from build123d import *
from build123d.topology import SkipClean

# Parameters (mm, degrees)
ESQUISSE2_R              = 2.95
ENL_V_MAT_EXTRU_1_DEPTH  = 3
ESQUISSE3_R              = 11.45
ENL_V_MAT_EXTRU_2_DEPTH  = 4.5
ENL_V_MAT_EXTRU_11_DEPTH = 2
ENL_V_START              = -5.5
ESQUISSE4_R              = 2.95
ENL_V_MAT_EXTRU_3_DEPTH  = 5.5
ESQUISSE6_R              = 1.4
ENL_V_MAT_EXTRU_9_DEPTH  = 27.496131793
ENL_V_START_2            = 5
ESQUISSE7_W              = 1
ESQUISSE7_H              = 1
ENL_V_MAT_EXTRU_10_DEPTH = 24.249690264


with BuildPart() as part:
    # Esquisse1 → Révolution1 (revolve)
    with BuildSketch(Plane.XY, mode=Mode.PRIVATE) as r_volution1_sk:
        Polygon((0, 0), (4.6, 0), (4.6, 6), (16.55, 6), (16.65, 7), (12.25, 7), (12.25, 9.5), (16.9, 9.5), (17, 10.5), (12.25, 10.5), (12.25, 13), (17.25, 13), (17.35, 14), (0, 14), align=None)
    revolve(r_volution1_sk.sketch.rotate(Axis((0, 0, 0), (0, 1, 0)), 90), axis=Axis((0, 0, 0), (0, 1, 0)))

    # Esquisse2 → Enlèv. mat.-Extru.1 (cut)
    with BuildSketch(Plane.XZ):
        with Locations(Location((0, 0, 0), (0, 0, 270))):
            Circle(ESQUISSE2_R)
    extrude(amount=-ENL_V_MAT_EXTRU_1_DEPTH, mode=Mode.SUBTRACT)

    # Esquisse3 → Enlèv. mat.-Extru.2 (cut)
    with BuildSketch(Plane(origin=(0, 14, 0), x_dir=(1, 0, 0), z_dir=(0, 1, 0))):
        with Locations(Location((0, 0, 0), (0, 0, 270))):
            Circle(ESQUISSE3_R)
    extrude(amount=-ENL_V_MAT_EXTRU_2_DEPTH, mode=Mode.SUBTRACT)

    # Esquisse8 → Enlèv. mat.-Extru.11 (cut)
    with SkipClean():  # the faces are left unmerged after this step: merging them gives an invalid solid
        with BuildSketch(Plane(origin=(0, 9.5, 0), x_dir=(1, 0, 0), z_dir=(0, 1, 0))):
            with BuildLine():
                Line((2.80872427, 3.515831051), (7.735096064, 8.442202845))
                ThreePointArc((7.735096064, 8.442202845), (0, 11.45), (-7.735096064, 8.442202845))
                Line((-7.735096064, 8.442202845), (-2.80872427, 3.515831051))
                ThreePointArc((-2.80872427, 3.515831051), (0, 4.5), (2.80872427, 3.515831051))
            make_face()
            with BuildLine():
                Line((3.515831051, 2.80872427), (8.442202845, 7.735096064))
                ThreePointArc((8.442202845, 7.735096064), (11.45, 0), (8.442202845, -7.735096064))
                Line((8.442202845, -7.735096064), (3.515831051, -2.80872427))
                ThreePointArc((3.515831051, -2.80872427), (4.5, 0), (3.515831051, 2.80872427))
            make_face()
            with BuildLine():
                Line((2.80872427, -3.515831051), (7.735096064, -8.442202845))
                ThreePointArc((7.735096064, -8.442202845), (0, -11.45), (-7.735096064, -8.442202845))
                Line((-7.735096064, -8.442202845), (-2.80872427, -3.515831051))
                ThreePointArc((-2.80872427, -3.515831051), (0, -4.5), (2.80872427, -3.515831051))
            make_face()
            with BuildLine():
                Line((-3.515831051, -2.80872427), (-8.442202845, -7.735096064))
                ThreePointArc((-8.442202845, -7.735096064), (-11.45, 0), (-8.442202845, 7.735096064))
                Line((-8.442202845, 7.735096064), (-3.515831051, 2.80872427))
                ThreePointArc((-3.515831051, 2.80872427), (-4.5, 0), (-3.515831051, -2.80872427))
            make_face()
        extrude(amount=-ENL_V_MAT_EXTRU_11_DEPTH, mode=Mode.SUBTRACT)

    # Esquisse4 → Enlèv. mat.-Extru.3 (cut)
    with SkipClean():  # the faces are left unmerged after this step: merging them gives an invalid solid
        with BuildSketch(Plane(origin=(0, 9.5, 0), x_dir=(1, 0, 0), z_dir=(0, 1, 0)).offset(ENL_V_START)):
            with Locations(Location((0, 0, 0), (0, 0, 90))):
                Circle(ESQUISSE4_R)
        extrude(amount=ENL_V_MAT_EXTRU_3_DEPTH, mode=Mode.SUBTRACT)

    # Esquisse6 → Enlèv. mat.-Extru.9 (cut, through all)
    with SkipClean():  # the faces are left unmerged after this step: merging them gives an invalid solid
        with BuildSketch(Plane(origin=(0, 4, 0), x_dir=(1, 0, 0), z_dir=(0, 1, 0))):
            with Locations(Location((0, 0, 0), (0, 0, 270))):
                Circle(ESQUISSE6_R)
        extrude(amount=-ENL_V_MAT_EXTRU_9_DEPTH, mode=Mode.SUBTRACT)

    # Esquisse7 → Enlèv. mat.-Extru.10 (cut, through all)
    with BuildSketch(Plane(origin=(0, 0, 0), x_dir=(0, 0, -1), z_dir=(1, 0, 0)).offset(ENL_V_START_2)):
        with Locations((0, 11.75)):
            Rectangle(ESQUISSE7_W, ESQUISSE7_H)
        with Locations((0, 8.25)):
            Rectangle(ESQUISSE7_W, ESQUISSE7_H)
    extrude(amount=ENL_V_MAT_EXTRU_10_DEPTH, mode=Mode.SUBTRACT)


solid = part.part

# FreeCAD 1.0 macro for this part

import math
import FreeCAD as App
import Part
import Sketcher
Q = App.Units.Quantity

doc = App.newDocument("Part")
params = doc.addObject("Spreadsheet::Sheet", "Params")
for row, (alias, value) in enumerate([
    ("sketch1_width", "5 mm"),
    ("sketch1_height", "6 mm"),
    ("sketch1_height2", "14 mm"),
    ("sketch1_width2", "4.6 mm"),
    ("sketch1_width3", "4.4 mm"),
    ("revolution_angle", "360 deg"),
    ("sketch2_diameter", "5.9 mm"),
    ("pocket1_length", "3 mm"),
    ("sketch3_diameter", "22.9 mm"),
    ("pocket2_length", "4.5 mm"),
    ("sketch4_radius", "4.5 mm"),
    ("sketch4_radius2", "11.45 mm"),
    ("pocket3_length", "2 mm"),
    ("sketch5_diameter", "5.9 mm"),
    ("pocket4_length", "5.5 mm"),
    ("sketch6_diameter", "2.8 mm"),
    ("sketch7_width", "1 mm"),
], start=1):
    params.set(f"A{row}", alias)
    params.set(f"B{row}", "=" + value)
    params.setAlias(f"B{row}", alias)

body = doc.addObject("PartDesign::Body", "Body")

sketch1 = body.newObject("Sketcher::SketchObject", "Sketch")
sketch1.AttachmentSupport = (doc.getObject("XY_Plane"), [""])
sketch1.MapMode = "FlatFace"
sketch1.addGeometry([
    Part.LineSegment(App.Vector(0, 0, 0), App.Vector(4.6, 0, 0)),
    Part.LineSegment(App.Vector(4.6, 0, 0), App.Vector(4.6, 6, 0)),
    Part.LineSegment(App.Vector(4.6, 6, 0), App.Vector(16.55, 6, 0)),
    Part.LineSegment(App.Vector(16.55, 6, 0), App.Vector(16.65, 7, 0)),
    Part.LineSegment(App.Vector(16.65, 7, 0), App.Vector(12.25, 7, 0)),
    Part.LineSegment(App.Vector(12.25, 7, 0), App.Vector(12.25, 9.5, 0)),
    Part.LineSegment(App.Vector(12.25, 9.5, 0), App.Vector(16.9, 9.5, 0)),
    Part.LineSegment(App.Vector(16.9, 9.5, 0), App.Vector(17, 10.5, 0)),
    Part.LineSegment(App.Vector(17, 10.5, 0), App.Vector(12.25, 10.5, 0)),
    Part.LineSegment(App.Vector(12.25, 10.5, 0), App.Vector(12.25, 13, 0)),
    Part.LineSegment(App.Vector(12.25, 13, 0), App.Vector(17.25, 13, 0)),
    Part.LineSegment(App.Vector(17.25, 13, 0), App.Vector(17.35, 14, 0)),
    Part.LineSegment(App.Vector(17.35, 14, 0), App.Vector(0, 14, 0)),
    Part.LineSegment(App.Vector(0, 14, 0), App.Vector(0, 0, 0)),
], False)
sketch1.addConstraint([
    Sketcher.Constraint("Coincident", 0, 2, 1, 1),
    Sketcher.Constraint("Coincident", 1, 2, 2, 1),
    Sketcher.Constraint("Coincident", 2, 2, 3, 1),
    Sketcher.Constraint("Coincident", 3, 2, 4, 1),
    Sketcher.Constraint("Coincident", 4, 2, 5, 1),
    Sketcher.Constraint("Coincident", 5, 2, 6, 1),
    Sketcher.Constraint("Coincident", 6, 2, 7, 1),
    Sketcher.Constraint("Coincident", 7, 2, 8, 1),
    Sketcher.Constraint("Coincident", 8, 2, 9, 1),
    Sketcher.Constraint("Coincident", 9, 2, 10, 1),
    Sketcher.Constraint("Coincident", 10, 2, 11, 1),
    Sketcher.Constraint("Coincident", 11, 2, 12, 1),
    Sketcher.Constraint("Coincident", 12, 2, 13, 1),
    Sketcher.Constraint("Coincident", 13, 2, 0, 1),
    Sketcher.Constraint("Horizontal", 0),
    Sketcher.Constraint("Vertical", 1),
    Sketcher.Constraint("Horizontal", 2),
    Sketcher.Constraint("Horizontal", 4),
    Sketcher.Constraint("Vertical", 5),
    Sketcher.Constraint("Horizontal", 6),
    Sketcher.Constraint("Horizontal", 8),
    Sketcher.Constraint("Vertical", 9),
    Sketcher.Constraint("Horizontal", 10),
    Sketcher.Constraint("Horizontal", 12),
    Sketcher.Constraint("Vertical", 13),
    Sketcher.Constraint("Coincident", 13, 2, -1, 1),
    Sketcher.Constraint("Parallel", 3, 7),
    Sketcher.Constraint("Parallel", 7, 11),
    Sketcher.Constraint("Vertical", 5, 2, 8, 2),
    Sketcher.Constraint("Equal", 5, 9),
    Sketcher.Constraint("Equal", 3, 7),
    Sketcher.Constraint("Equal", 7, 11),
    Sketcher.Constraint("DistanceX", 10, 1, 10, 2, Q("5 mm")),
    Sketcher.Constraint("DistanceY", 1, 1, 1, 2, Q("6 mm")),
    Sketcher.Constraint("DistanceY", 13, 2, 13, 1, Q("14 mm")),
    Sketcher.Constraint("DistanceX", 0, 1, 0, 2, Q("4.6 mm")),
    Sketcher.Constraint("DistanceX", 4, 2, 4, 1, Q("4.4 mm")),
    Sketcher.Constraint("DistanceY", 5, 1, 5, 2, Q("2.5 mm")),
    Sketcher.Constraint("DistanceX", -1, 1, 7, 2, Q("17 mm")),
    Sketcher.Constraint("DistanceX", 2, 1, 2, 2, Q("11.95 mm")),
    Sketcher.Constraint("DistanceX", 6, 1, 6, 2, Q("4.65 mm")),
])
sketch1.setExpression("Constraints[32]", "Params.sketch1_width")
sketch1.setExpression("Constraints[33]", "Params.sketch1_height")
sketch1.setExpression("Constraints[34]", "Params.sketch1_height2")
sketch1.setExpression("Constraints[35]", "Params.sketch1_width2")
sketch1.setExpression("Constraints[36]", "Params.sketch1_width3")
revolution = body.newObject("PartDesign::Revolution", "Revolution")
revolution.Profile = sketch1
revolution.ReferenceAxis = (sketch1, ["V_Axis"])
revolution.setExpression("Angle", "Params.revolution_angle")

sketch2 = body.newObject("Sketcher::SketchObject", "Sketch001")
sketch2.AttachmentSupport = (doc.getObject("XZ_Plane"), [""])
sketch2.MapMode = "FlatFace"
sketch2.addGeometry(Part.Circle(App.Vector(0, 0, 0), App.Vector(0, 0, 1), 2.95), False)
sketch2.addConstraint([
    Sketcher.Constraint("Coincident", 0, 3, -1, 1),
    Sketcher.Constraint("Diameter", 0, Q("5.9 mm")),
])
sketch2.setExpression("Constraints[1]", "Params.sketch2_diameter")
pocket1 = body.newObject("PartDesign::Pocket", "Pocket")
pocket1.Profile = sketch2
pocket1.setExpression("Length", "Params.pocket1_length")

sketch3 = body.newObject("Sketcher::SketchObject", "Sketch002")
sketch3.AttachmentSupport = (doc.getObject("XZ_Plane"), [""])
sketch3.MapMode = "FlatFace"
sketch3.AttachmentOffset = App.Placement(App.Vector(0, 0, -14), App.Rotation())
sketch3.addGeometry(Part.Circle(App.Vector(0, 0, 0), App.Vector(0, 0, 1), 11.45), False)
sketch3.addConstraint([
    Sketcher.Constraint("Coincident", 0, 3, -1, 1),
    Sketcher.Constraint("Diameter", 0, Q("22.9 mm")),
])
sketch3.setExpression("Constraints[1]", "Params.sketch3_diameter")
pocket2 = body.newObject("PartDesign::Pocket", "Pocket001")
pocket2.Profile = sketch3
pocket2.setExpression("Length", "Params.pocket2_length")
pocket2.Reversed = True

sketch4 = body.newObject("Sketcher::SketchObject", "Sketch003")
sketch4.AttachmentSupport = (doc.getObject("XZ_Plane"), [""])
sketch4.MapMode = "FlatFace"
sketch4.AttachmentOffset = App.Placement(App.Vector(0, 0, -9.5), App.Rotation())
sketch4.addGeometry([
    Part.LineSegment(App.Vector(2.808724, -3.515831, 0), App.Vector(7.735096, -8.442203, 0)),
    Part.ArcOfCircle(Part.Circle(App.Vector(0, 0, 0), App.Vector(0, 0, 1), 11.45), math.radians(-132.497205), math.radians(-47.502795)),
    Part.LineSegment(App.Vector(-7.735096, -8.442203, 0), App.Vector(-2.808724, -3.515831, 0)),
    Part.ArcOfCircle(Part.Circle(App.Vector(0, 0, 0), App.Vector(0, 0, 1), 4.5), math.radians(-128.62063), math.radians(-51.37937)),
    Part.LineSegment(App.Vector(8.442203, -7.735096, 0), App.Vector(3.515831, -2.808724, 0)),
    Part.ArcOfCircle(Part.Circle(App.Vector(0, 0, 0), App.Vector(0, 0, 1), 4.5), math.radians(-38.62063), math.radians(38.62063)),
    Part.LineSegment(App.Vector(3.515831, 2.808724, 0), App.Vector(8.442203, 7.735096, 0)),
    Part.ArcOfCircle(Part.Circle(App.Vector(0, 0, 0), App.Vector(0, 0, 1), 11.45), math.radians(-42.497205), math.radians(42.497205)),
    Part.LineSegment(App.Vector(7.735096, 8.442203, 0), App.Vector(2.808724, 3.515831, 0)),
    Part.ArcOfCircle(Part.Circle(App.Vector(0, 0, 0), App.Vector(0, 0, 1), 4.5), math.radians(51.37937), math.radians(128.62063)),
    Part.LineSegment(App.Vector(-2.808724, 3.515831, 0), App.Vector(-7.735096, 8.442203, 0)),
    Part.ArcOfCircle(Part.Circle(App.Vector(0, 0, 0), App.Vector(0, 0, 1), 11.45), math.radians(47.502795), math.radians(132.497205)),
    Part.LineSegment(App.Vector(-8.442203, 7.735096, 0), App.Vector(-3.515831, 2.808724, 0)),
    Part.ArcOfCircle(Part.Circle(App.Vector(0, 0, 0), App.Vector(0, 0, 1), 4.5), math.radians(141.37937), math.radians(218.62063)),
    Part.LineSegment(App.Vector(-3.515831, -2.808724, 0), App.Vector(-8.442203, -7.735096, 0)),
    Part.ArcOfCircle(Part.Circle(App.Vector(0, 0, 0), App.Vector(0, 0, 1), 11.45), math.radians(137.502795), math.radians(222.497205)),
], False)
sketch4.addConstraint([
    Sketcher.Constraint("Coincident", 0, 2, 1, 2),
    Sketcher.Constraint("Coincident", 1, 1, 2, 1),
    Sketcher.Constraint("Coincident", 2, 2, 3, 1),
    Sketcher.Constraint("Coincident", 3, 2, 0, 1),
    Sketcher.Constraint("Coincident", 4, 2, 5, 1),
    Sketcher.Constraint("Coincident", 5, 2, 6, 1),
    Sketcher.Constraint("Coincident", 6, 2, 7, 2),
    Sketcher.Constraint("Coincident", 7, 1, 4, 1),
    Sketcher.Constraint("Coincident", 8, 2, 9, 1),
    Sketcher.Constraint("Coincident", 9, 2, 10, 1),
    Sketcher.Constraint("Coincident", 10, 2, 11, 2),
    Sketcher.Constraint("Coincident", 11, 1, 8, 1),
    Sketcher.Constraint("Coincident", 12, 2, 13, 1),
    Sketcher.Constraint("Coincident", 13, 2, 14, 1),
    Sketcher.Constraint("Coincident", 14, 2, 15, 2),
    Sketcher.Constraint("Coincident", 15, 1, 12, 1),
    Sketcher.Constraint("Coincident", 1, 3, -1, 1),
    Sketcher.Constraint("Coincident", 3, 3, -1, 1),
    Sketcher.Constraint("Coincident", 5, 3, -1, 1),
    Sketcher.Constraint("Coincident", 7, 3, -1, 1),
    Sketcher.Constraint("Coincident", 9, 3, -1, 1),
    Sketcher.Constraint("Coincident", 11, 3, -1, 1),
    Sketcher.Constraint("Coincident", 13, 3, -1, 1),
    Sketcher.Constraint("Coincident", 15, 3, -1, 1),
    Sketcher.Constraint("Equal", 3, 5),
    Sketcher.Constraint("Equal", 1, 7),
    Sketcher.Constraint("Equal", 5, 9),
    Sketcher.Constraint("Equal", 7, 11),
    Sketcher.Constraint("Equal", 9, 13),
    Sketcher.Constraint("Equal", 11, 15),
    Sketcher.Constraint("Perpendicular", 0, 2),
    Sketcher.Constraint("Perpendicular", 2, 4),
    Sketcher.Constraint("Perpendicular", 4, 6),
    Sketcher.Constraint("Parallel", 6, 8),
    Sketcher.Constraint("Perpendicular", 8, 10),
    Sketcher.Constraint("Parallel", 10, 12),
    Sketcher.Constraint("Perpendicular", 12, 14),
    Sketcher.Constraint("Horizontal", 0, 2, 1, 1),
    Sketcher.Constraint("Horizontal", 2, 2, 3, 2),
    Sketcher.Constraint("Horizontal", 8, 2, 9, 2),
    Sketcher.Constraint("Horizontal", 5, 2, 12, 2),
    Sketcher.Constraint("Horizontal", 4, 2, 13, 2),
    Sketcher.Constraint("Vertical", 4, 2, 5, 2),
    Sketcher.Constraint("Vertical", 3, 2, 8, 2),
    Sketcher.Constraint("Equal", 2, 4),
    Sketcher.Constraint("Radius", 3, Q("4.5 mm")),
    Sketcher.Constraint("Radius", 1, Q("11.45 mm")),
    Sketcher.Constraint("Distance", 0, Q("6.966942 mm")),
])
sketch4.setExpression("Constraints[45]", "Params.sketch4_radius")
sketch4.setExpression("Constraints[46]", "Params.sketch4_radius2")
pocket3 = body.newObject("PartDesign::Pocket", "Pocket002")
pocket3.Profile = sketch4
pocket3.setExpression("Length", "Params.pocket3_length")
pocket3.Reversed = True

sketch5 = body.newObject("Sketcher::SketchObject", "Sketch004")
sketch5.AttachmentSupport = (doc.getObject("XZ_Plane"), [""])
sketch5.MapMode = "FlatFace"
sketch5.AttachmentOffset = App.Placement(App.Vector(0, 0, -4), App.Rotation())
sketch5.addGeometry(Part.Circle(App.Vector(0, 0, 0), App.Vector(0, 0, 1), 2.95), False)
sketch5.addConstraint([
    Sketcher.Constraint("Coincident", 0, 3, -1, 1),
    Sketcher.Constraint("Diameter", 0, Q("5.9 mm")),
])
sketch5.setExpression("Constraints[1]", "Params.sketch5_diameter")
pocket4 = body.newObject("PartDesign::Pocket", "Pocket003")
pocket4.Profile = sketch5
pocket4.setExpression("Length", "Params.pocket4_length")

sketch6 = body.newObject("Sketcher::SketchObject", "Sketch005")
sketch6.AttachmentSupport = (doc.getObject("XZ_Plane"), [""])
sketch6.MapMode = "FlatFace"
sketch6.AttachmentOffset = App.Placement(App.Vector(0, 0, -4), App.Rotation())
sketch6.addGeometry(Part.Circle(App.Vector(0, 0, 0), App.Vector(0, 0, 1), 1.4), False)
sketch6.addConstraint([
    Sketcher.Constraint("Coincident", 0, 3, -1, 1),
    Sketcher.Constraint("Diameter", 0, Q("2.8 mm")),
])
sketch6.setExpression("Constraints[1]", "Params.sketch6_diameter")
pocket5 = body.newObject("PartDesign::Pocket", "Pocket004")
pocket5.Profile = sketch6
pocket5.Type = "ThroughAll"
pocket5.Reversed = True

sketch7 = body.newObject("Sketcher::SketchObject", "Sketch006")
sketch7.AttachmentSupport = (doc.getObject("YZ_Plane"), [""])
sketch7.MapMode = "FlatFace"
sketch7.AttachmentOffset = App.Placement(App.Vector(0, 0, 5), App.Rotation())
sketch7.addGeometry([
    Part.LineSegment(App.Vector(12.25, 0.5, 0), App.Vector(11.25, 0.5, 0)),
    Part.LineSegment(App.Vector(11.25, 0.5, 0), App.Vector(11.25, -0.5, 0)),
    Part.LineSegment(App.Vector(11.25, -0.5, 0), App.Vector(12.25, -0.5, 0)),
    Part.LineSegment(App.Vector(12.25, -0.5, 0), App.Vector(12.25, 0.5, 0)),
    Part.LineSegment(App.Vector(8.75, 0.5, 0), App.Vector(7.75, 0.5, 0)),
    Part.LineSegment(App.Vector(7.75, 0.5, 0), App.Vector(7.75, -0.5, 0)),
    Part.LineSegment(App.Vector(7.75, -0.5, 0), App.Vector(8.75, -0.5, 0)),
    Part.LineSegment(App.Vector(8.75, -0.5, 0), App.Vector(8.75, 0.5, 0)),
], False)
sketch7.addConstraint([
    Sketcher.Constraint("Coincident", 0, 2, 1, 1),
    Sketcher.Constraint("Coincident", 1, 2, 2, 1),
    Sketcher.Constraint("Coincident", 2, 2, 3, 1),
    Sketcher.Constraint("Coincident", 3, 2, 0, 1),
    Sketcher.Constraint("Coincident", 4, 2, 5, 1),
    Sketcher.Constraint("Coincident", 5, 2, 6, 1),
    Sketcher.Constraint("Coincident", 6, 2, 7, 1),
    Sketcher.Constraint("Coincident", 7, 2, 4, 1),
    Sketcher.Constraint("Horizontal", 0),
    Sketcher.Constraint("Vertical", 1),
    Sketcher.Constraint("Horizontal", 2),
    Sketcher.Constraint("Vertical", 3),
    Sketcher.Constraint("Horizontal", 4),
    Sketcher.Constraint("Vertical", 5),
    Sketcher.Constraint("Horizontal", 6),
    Sketcher.Constraint("Vertical", 7),
    Sketcher.Constraint("Horizontal", 3, 2, 4, 2),
    Sketcher.Constraint("Horizontal", 2, 2, 5, 2),
    Sketcher.Constraint("Equal", 2, 4),
    Sketcher.Constraint("Equal", 6, 1),
    Sketcher.Constraint("DistanceX", 0, 2, 0, 1, Q("1 mm")),
    Sketcher.Constraint("DistanceY", -1, 1, 0, 2, Q("0.5 mm")),
    Sketcher.Constraint("DistanceX", 4, 2, 0, 2, Q("3.5 mm")),
    Sketcher.Constraint("DistanceX", -1, 1, 0, 2, Q("11.25 mm")),
])
sketch7.setExpression("Constraints[20]", "Params.sketch7_width")
pocket6 = body.newObject("PartDesign::Pocket", "Pocket005")
pocket6.Profile = sketch7
pocket6.Type = "ThroughAll"
pocket6.Reversed = True

doc.recompute()
